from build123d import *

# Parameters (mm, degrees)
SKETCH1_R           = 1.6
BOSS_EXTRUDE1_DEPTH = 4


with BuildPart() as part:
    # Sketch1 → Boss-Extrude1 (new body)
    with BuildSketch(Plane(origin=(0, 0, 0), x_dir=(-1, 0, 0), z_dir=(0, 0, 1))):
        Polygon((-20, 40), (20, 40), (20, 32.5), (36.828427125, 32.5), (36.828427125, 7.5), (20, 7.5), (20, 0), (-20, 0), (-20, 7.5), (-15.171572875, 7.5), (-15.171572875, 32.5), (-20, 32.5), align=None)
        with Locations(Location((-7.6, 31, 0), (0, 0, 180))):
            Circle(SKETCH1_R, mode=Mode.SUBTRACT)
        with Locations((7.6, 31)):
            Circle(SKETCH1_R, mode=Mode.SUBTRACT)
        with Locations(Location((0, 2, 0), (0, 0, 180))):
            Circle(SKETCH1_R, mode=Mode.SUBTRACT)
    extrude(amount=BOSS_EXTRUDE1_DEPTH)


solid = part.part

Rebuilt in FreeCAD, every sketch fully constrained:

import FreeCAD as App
import Part
import Sketcher

V = App.Vector


def add_polygon(sketch, points):
    """Adds a closed chain of lines whose ends are joined by coincident constraints."""
    first, n = sketch.GeometryCount, len(points)
    for a, b in zip(points, points[1:] + points[:1]):
        sketch.addGeometry(Part.LineSegment(App.Vector(*a, 0), App.Vector(*b, 0)), False)
    for i in range(n):
        sketch.addConstraint(Sketcher.Constraint("Coincident", first + i, 2, first + (i + 1) % n, 1))

doc = App.newDocument("Part")
body = doc.addObject("PartDesign::Body", "Body")

# Sketch on XY plane
sketch1 = body.newObject("Sketcher::SketchObject", "Sketch")
sketch1.AttachmentSupport = (doc.getObject("XY_Plane"), [""])
sketch1.MapMode = "FlatFace"
add_polygon(sketch1, [(-20, -40), (20, -40), (20, -32.5), (15.2, -32.5), (15.2, -7.5), (20, -7.5), (20, 0), (-20, 0), (-20, -7.5), (-36.8, -7.5), (-36.8, -32.5), (-20, -32.5)])  # lines 0-11
sketch1.addGeometry(Part.Circle(V(0, -2, 0), V(0, 0, 1), 1.6), False)  # 12
sketch1.addGeometry(Part.Circle(V(-7.6, -31, 0), V(0, 0, 1), 1.6), False)  # 13
sketch1.addGeometry(Part.Circle(V(7.6, -31, 0), V(0, 0, 1), 1.6), False)  # 14
sketch1.addConstraint([
    Sketcher.Constraint("Horizontal", 0),
    Sketcher.Constraint("Vertical", 1),
    Sketcher.Constraint("Horizontal", 2),
    Sketcher.Constraint("Vertical", 3),
    Sketcher.Constraint("Horizontal", 4),
    Sketcher.Constraint("Vertical", 5),
    Sketcher.Constraint("Horizontal", 6),
    Sketcher.Constraint("Vertical", 7),
    Sketcher.Constraint("Horizontal", 8),
    Sketcher.Constraint("Vertical", 9),
    Sketcher.Constraint("Horizontal", 10),
    Sketcher.Constraint("Vertical", 11),
    Sketcher.Constraint("Equal", 12, 13),
    Sketcher.Constraint("Equal", 13, 14),
    Sketcher.Constraint("Symmetric", 5, 2, 6, 2, -1, 1),
    Sketcher.Constraint("Symmetric", 13, 3, 14, 3, -2),
    Sketcher.Constraint("Symmetric", 1, 2, 10, 2, -2),
    Sketcher.Constraint("PointOnObject", 12, 3, -2),
    Sketcher.Constraint("Horizontal", 4, 2, 7, 2),
    Sketcher.Constraint("Vertical", 1, 2, 4, 2),
    Sketcher.Constraint("Equal", 1, 5),
    Sketcher.Constraint("Diameter", 12, 3.2),
    Sketcher.Constraint("DistanceX", 0, 1, 0, 2, 40.0),
    Sketcher.Constraint("DistanceY", 3, 1, 3, 2, 25.0),
    Sketcher.Constraint("DistanceY", 1, 1, 1, 2, 7.5),
    Sketcher.Constraint("DistanceY", 12, 3, -1, 1, 2.0),
    Sketcher.Constraint("DistanceY", 13, 3, -1, 1, 31.0),
    Sketcher.Constraint("DistanceX", 13, 3, -1, 1, 7.6),
    Sketcher.Constraint("DistanceX", 2, 2, 2, 1, 4.828427),
    Sketcher.Constraint("DistanceX", 8, 2, 8, 1, 16.828427),
])
pad1 = body.newObject("PartDesign::Pad", "Pad")
pad1.Profile = sketch1
pad1.Length = 4

doc.recompute()
